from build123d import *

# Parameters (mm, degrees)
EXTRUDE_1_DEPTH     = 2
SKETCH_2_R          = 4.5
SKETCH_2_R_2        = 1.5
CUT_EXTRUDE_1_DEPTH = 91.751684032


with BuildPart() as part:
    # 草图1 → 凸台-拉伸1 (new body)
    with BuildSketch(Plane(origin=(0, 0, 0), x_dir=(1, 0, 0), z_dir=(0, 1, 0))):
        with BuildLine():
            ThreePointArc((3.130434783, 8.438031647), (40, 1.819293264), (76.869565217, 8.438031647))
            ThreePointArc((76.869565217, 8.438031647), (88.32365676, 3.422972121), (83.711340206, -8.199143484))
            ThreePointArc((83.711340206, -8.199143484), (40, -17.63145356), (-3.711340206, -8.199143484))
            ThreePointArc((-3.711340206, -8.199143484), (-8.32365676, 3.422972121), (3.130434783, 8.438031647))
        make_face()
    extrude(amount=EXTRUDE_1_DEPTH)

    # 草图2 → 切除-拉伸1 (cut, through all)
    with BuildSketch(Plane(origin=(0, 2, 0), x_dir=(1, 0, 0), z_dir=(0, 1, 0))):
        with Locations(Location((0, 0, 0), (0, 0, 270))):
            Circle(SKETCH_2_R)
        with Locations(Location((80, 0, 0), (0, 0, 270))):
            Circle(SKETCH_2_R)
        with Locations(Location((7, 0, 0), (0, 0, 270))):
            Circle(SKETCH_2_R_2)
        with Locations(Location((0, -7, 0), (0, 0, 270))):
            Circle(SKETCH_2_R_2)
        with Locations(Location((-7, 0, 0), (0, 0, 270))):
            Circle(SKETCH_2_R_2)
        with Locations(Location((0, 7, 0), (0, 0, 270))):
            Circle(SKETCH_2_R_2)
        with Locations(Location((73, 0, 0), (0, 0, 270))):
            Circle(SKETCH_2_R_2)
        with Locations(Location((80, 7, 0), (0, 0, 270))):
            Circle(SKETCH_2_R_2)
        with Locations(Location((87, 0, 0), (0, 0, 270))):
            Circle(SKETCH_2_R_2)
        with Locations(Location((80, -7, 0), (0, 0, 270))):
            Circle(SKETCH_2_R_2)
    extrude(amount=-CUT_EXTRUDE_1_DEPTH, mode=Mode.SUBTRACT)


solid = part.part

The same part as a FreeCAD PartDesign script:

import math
import FreeCAD as App
import Part
import Sketcher

doc = App.newDocument("Part")
body = doc.addObject("PartDesign::Body", "Body")

# Sketch on XZ plane
sketch1 = body.newObject("Sketcher::SketchObject", "Sketch")
sketch1.AttachmentSupport = (doc.getObject("XZ_Plane"), [""])
sketch1.MapMode = "FlatFace"
sketch1.addGeometry([
    Part.ArcOfCircle(Part.Circle(App.Vector(40, -108, 0), App.Vector(0, 0, 1), 106), math.radians(70), math.radians(110)),
    Part.ArcOfCircle(Part.Circle(App.Vector(0, 0, 0), App.Vector(0, 0, 1), 9), math.radians(114), math.radians(290)),
    Part.ArcOfCircle(Part.Circle(App.Vector(40, -88, 0), App.Vector(0, 0, 1), 106), math.radians(66), math.radians(114)),
    Part.ArcOfCircle(Part.Circle(App.Vector(80, 0, 0), App.Vector(0, 0, 1), 9), math.radians(-110), math.radians(66)),
], False)
sketch1.addConstraint([
    Sketcher.Constraint("Tangent", 0, 2, 1, 2),
    Sketcher.Constraint("Tangent", 1, 1, 2, 2),
    Sketcher.Constraint("Tangent", 2, 1, 3, 2),
    Sketcher.Constraint("Tangent", 3, 1, 0, 1),
    Sketcher.Constraint("Coincident", 1, 3, -1, 1),
    Sketcher.Constraint("Equal", 0, 2),
    Sketcher.Constraint("Equal", 1, 3),
    Sketcher.Constraint("PointOnObject", 3, 3, -1),
    Sketcher.Constraint("Radius", 0, 106.0),
    Sketcher.Constraint("Radius", 1, 9.0),
    Sketcher.Constraint("DistanceX", -1, 1, 0, 3, 40.0),
])
pad1 = body.newObject("PartDesign::Pad", "Pad")
pad1.Profile = sketch1
pad1.Length = 2
pad1.Reversed = True

# Sketch on XZ plane
sketch2 = body.newObject("Sketcher::SketchObject", "Sketch001")
sketch2.AttachmentSupport = (doc.getObject("XZ_Plane"), [""])
sketch2.MapMode = "FlatFace"
sketch2.AttachmentOffset = App.Placement(App.Vector(0, 0, -2), App.Rotation())
sketch2.addGeometry([
    Part.Circle(App.Vector(0, 0, 0), App.Vector(0, 0, 1), 4.5),  # 0
    Part.Circle(App.Vector(80, 0, 0), App.Vector(0, 0, 1), 4.5),  # 1
    Part.Circle(App.Vector(7, 0, 0), App.Vector(0, 0, 1), 1.5),  # 2
    Part.Circle(App.Vector(0, 7, 0), App.Vector(0, 0, 1), 1.5),  # 3
    Part.Circle(App.Vector(-7, 0, 0), App.Vector(0, 0, 1), 1.5),  # 4
    Part.Circle(App.Vector(0, -7, 0), App.Vector(0, 0, 1), 1.5),  # 5
    Part.Circle(App.Vector(73, 0, 0), App.Vector(0, 0, 1), 1.5),  # 6
    Part.Circle(App.Vector(80, -7, 0), App.Vector(0, 0, 1), 1.5),  # 7
    Part.Circle(App.Vector(87, 0, 0), App.Vector(0, 0, 1), 1.5),  # 8
    Part.Circle(App.Vector(80, 7, 0), App.Vector(0, 0, 1), 1.5),  # 9
], False)
sketch2.addConstraint([
    Sketcher.Constraint("Coincident", 0, 3, -1, 1),
    Sketcher.Constraint("Equal", 0, 1),
    Sketcher.Constraint("Equal", 2, 3),
    Sketcher.Constraint("Equal", 3, 4),
    Sketcher.Constraint("Equal", 4, 5),
    Sketcher.Constraint("Equal", 5, 6),
    Sketcher.Constraint("Equal", 6, 7),
    Sketcher.Constraint("Equal", 7, 8),
    Sketcher.Constraint("Equal", 8, 9),
    Sketcher.Constraint("Symmetric", 2, 3, 4, 3, -1, 1),
    Sketcher.Constraint("Symmetric", 3, 3, 5, 3, -1, 1),
    Sketcher.Constraint("Symmetric", 7, 3, 9, 3, -1),
    Sketcher.Constraint("PointOnObject", 1, 3, -1),
    Sketcher.Constraint("PointOnObject", 2, 3, -1),
    Sketcher.Constraint("PointOnObject", 3, 3, -2),
    Sketcher.Constraint("PointOnObject", 6, 3, -1),
    Sketcher.Constraint("PointOnObject", 8, 3, -1),
    Sketcher.Constraint("Horizontal", 5, 3, 7, 3),
    Sketcher.Constraint("Vertical", 1, 3, 7, 3),
    Sketcher.Constraint("Diameter", 0, 9.0),
    Sketcher.Constraint("Diameter", 2, 3.0),
    Sketcher.Constraint("DistanceX", -1, 1, 1, 3, 80.0),
    Sketcher.Constraint("DistanceX", -1, 1, 2, 3, 7.0),
    Sketcher.Constraint("DistanceY", -1, 1, 3, 3, 7.0),
    Sketcher.Constraint("DistanceX", -1, 1, 6, 3, 73.0),
    Sketcher.Constraint("DistanceX", -1, 1, 8, 3, 87.0),
])
pocket1 = body.newObject("PartDesign::Pocket", "Pocket")
pocket1.Profile = sketch2
pocket1.Type = "ThroughAll"
pocket1.Reversed = True

doc.recompute()
